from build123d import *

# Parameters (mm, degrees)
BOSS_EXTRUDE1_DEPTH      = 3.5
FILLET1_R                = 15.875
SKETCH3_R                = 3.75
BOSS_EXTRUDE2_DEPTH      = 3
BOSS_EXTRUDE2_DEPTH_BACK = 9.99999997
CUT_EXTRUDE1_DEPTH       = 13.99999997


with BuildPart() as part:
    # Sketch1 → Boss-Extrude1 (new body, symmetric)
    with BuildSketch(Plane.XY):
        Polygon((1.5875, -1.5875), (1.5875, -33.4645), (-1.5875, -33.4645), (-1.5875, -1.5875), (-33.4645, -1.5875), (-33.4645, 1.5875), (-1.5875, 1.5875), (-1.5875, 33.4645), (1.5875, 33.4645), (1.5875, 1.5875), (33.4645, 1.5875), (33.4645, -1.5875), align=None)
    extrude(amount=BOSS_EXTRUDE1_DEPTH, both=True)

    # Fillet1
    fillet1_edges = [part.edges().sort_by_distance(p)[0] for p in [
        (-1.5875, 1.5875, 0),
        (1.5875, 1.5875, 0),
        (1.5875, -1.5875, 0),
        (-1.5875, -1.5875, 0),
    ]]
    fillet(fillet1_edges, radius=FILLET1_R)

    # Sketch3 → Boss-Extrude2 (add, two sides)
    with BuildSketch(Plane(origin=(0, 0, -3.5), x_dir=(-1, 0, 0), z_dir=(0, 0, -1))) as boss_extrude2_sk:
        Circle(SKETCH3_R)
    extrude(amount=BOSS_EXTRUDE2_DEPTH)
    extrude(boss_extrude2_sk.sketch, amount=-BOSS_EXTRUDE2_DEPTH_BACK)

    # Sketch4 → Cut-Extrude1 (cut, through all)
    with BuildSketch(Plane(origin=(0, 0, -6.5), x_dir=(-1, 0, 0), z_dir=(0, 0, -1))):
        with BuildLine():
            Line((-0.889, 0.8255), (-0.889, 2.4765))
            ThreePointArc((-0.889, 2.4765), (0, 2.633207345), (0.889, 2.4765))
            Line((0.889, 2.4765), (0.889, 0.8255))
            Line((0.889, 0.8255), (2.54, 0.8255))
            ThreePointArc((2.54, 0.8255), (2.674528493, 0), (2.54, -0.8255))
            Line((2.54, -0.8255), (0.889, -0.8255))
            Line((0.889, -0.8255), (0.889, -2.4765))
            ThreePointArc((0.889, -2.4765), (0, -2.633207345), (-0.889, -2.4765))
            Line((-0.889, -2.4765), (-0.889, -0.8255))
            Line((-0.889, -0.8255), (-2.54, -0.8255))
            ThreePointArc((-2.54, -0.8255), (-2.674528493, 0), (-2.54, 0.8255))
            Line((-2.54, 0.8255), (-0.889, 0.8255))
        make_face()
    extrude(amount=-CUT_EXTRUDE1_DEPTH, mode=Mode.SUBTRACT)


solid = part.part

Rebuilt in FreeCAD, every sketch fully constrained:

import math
import FreeCAD as App
import Part
import Sketcher

V = App.Vector


def edges_at(feature, points):
    """Names of the edges that pass closest to the given points."""
    edges = feature.Shape.Edges
    near = lambda p: min(range(len(edges)), key=lambda i: edges[i].distToShape(Part.Vertex(*p))[0])
    return sorted({f"Edge{near(p) + 1}" for p in points})


def add_polygon(sketch, points):
    """Adds a closed chain of lines whose ends are joined by coincident constraints."""
    first, n = sketch.GeometryCount, len(points)
    for a, b in zip(points, points[1:] + points[:1]):
        sketch.addGeometry(Part.LineSegment(App.Vector(*a, 0), App.Vector(*b, 0)), False)
    for i in range(n):
        sketch.addConstraint(Sketcher.Constraint("Coincident", first + i, 2, first + (i + 1) % n, 1))

doc = App.newDocument("Part")
body = doc.addObject("PartDesign::Body", "Body")

sketch1 = body.newObject("Sketcher::SketchObject", "Sketch")
sketch1.AttachmentSupport = (doc.getObject("XY_Plane"), [""])
sketch1.MapMode = "FlatFace"
add_polygon(sketch1, [(1.6, -33.5), (1.6, -1.6), (33.5, -1.6), (33.5, 1.6), (1.6, 1.6), (1.6, 33.5), (-1.6, 33.5), (-1.6, 1.6), (-33.5, 1.6), (-33.5, -1.6), (-1.6, -1.6), (-1.6, -33.5)])
sketch1.addConstraint([
    Sketcher.Constraint("Vertical", 0),
    Sketcher.Constraint("Horizontal", 1),
    Sketcher.Constraint("Vertical", 2),
    Sketcher.Constraint("Horizontal", 3),
    Sketcher.Constraint("Vertical", 4),
    Sketcher.Constraint("Horizontal", 5),
    Sketcher.Constraint("Vertical", 6),
    Sketcher.Constraint("Horizontal", 7),
    Sketcher.Constraint("Vertical", 8),
    Sketcher.Constraint("Horizontal", 9),
    Sketcher.Constraint("Vertical", 10),
    Sketcher.Constraint("Horizontal", 11),
    Sketcher.Constraint("Symmetric", 0, 2, 6, 2, -1, 1),
    Sketcher.Constraint("Symmetric", 2, 2, 8, 2, -1, 1),
    Sketcher.Constraint("Symmetric", 4, 2, 10, 2, -1, 1),
    Sketcher.Constraint("Symmetric", 3, 2, 6, 2, -2),
    Sketcher.Constraint("Equal", 9, 0),
    Sketcher.Constraint("Equal", 11, 2),
    Sketcher.Constraint("DistanceX", 1, 1, 1, 2, 31.877),
    Sketcher.Constraint("DistanceX", 5, 2, 5, 1, 3.175),
])
pad1 = body.newObject("PartDesign::Pad", "Pad")
pad1.Profile = sketch1
pad1.Length = 7
pad1.Midplane = True
doc.recompute()

fillet = body.newObject("PartDesign::Fillet", "Fillet")
fillet.Base = (pad1, edges_at(pad1, [
    (-1.587, 1.587, 0),
    (1.587, 1.587, 0),
    (1.587, -1.587, 0),
    (-1.587, -1.587, 0),
]))
fillet.Radius = 15.875

sketch2 = body.newObject("Sketcher::SketchObject", "Sketch001")
sketch2.AttachmentSupport = (doc.getObject("XY_Plane"), [""])
sketch2.MapMode = "FlatFace"
sketch2.AttachmentOffset = App.Placement(V(0, 0, -3.5), App.Rotation())
sketch2.addGeometry(Part.Circle(V(0, 0, 0), V(0, 0, 1), 3.8), False)
sketch2.addConstraint([
    Sketcher.Constraint("Coincident", 0, 3, -1, 1),
    Sketcher.Constraint("Diameter", 0, 7.5),
])
pad2 = body.newObject("PartDesign::Pad", "Pad001")
pad2.Profile = sketch2
pad2.Type = "TwoLengths"
pad2.Length = 3
pad2.Length2 = 10
pad2.Reversed = True

sketch3 = body.newObject("Sketcher::SketchObject", "Sketch002")
sketch3.AttachmentSupport = (doc.getObject("XY_Plane"), [""])
sketch3.MapMode = "FlatFace"
sketch3.AttachmentOffset = App.Placement(V(0, 0, -6.5), App.Rotation())
sketch3.addGeometry([
    Part.LineSegment(V(0.889, 2.4765, 0), V(0.889, 0.8255, 0)),
    Part.LineSegment(V(0.889, 0.8255, 0), V(2.54, 0.8255, 0)),
    Part.ArcOfCircle(Part.Circle(V(0.074528, 0, 0), V(0, 0, 1), 2.6), math.radians(-18.511803), math.radians(18.511803)),
    Part.LineSegment(V(2.54, -0.8255, 0), V(0.889, -0.8255, 0)),
    Part.LineSegment(V(0.889, -0.8255, 0), V(0.889, -2.4765, 0)),
    Part.ArcOfCircle(Part.Circle(V(0, -0.033207, 0), V(0, 0, 1), 2.6), math.radians(-109.994082), math.radians(-70.005918)),
    Part.LineSegment(V(-0.889, -2.4765, 0), V(-0.889, -0.8255, 0)),
    Part.LineSegment(V(-0.889, -0.8255, 0), V(-2.54, -0.8255, 0)),
    Part.ArcOfCircle(Part.Circle(V(-0.074528, 0, 0), V(0, 0, 1), 2.6), math.radians(161.488197), math.radians(198.511803)),
    Part.LineSegment(V(-2.54, 0.8255, 0), V(-0.889, 0.8255, 0)),
    Part.LineSegment(V(-0.889, 0.8255, 0), V(-0.889, 2.4765, 0)),
    Part.ArcOfCircle(Part.Circle(V(0, 0.033207, 0), V(0, 0, 1), 2.6), math.radians(70.005918), math.radians(109.994082)),
], False)
sketch3.addConstraint([
    Sketcher.Constraint("Coincident", 0, 2, 1, 1),
    Sketcher.Constraint("Coincident", 1, 2, 2, 2),
    Sketcher.Constraint("Coincident", 2, 1, 3, 1),
    Sketcher.Constraint("Coincident", 3, 2, 4, 1),
    Sketcher.Constraint("Coincident", 4, 2, 5, 2),
    Sketcher.Constraint("Coincident", 5, 1, 6, 1),
    Sketcher.Constraint("Coincident", 6, 2, 7, 1),
    Sketcher.Constraint("Coincident", 7, 2, 8, 2),
    Sketcher.Constraint("Coincident", 8, 1, 9, 1),
    Sketcher.Constraint("Coincident", 9, 2, 10, 1),
    Sketcher.Constraint("Coincident", 10, 2, 11, 2),
    Sketcher.Constraint("Coincident", 11, 1, 0, 1),
    Sketcher.Constraint("Vertical", 0),
    Sketcher.Constraint("Horizontal", 1),
    Sketcher.Constraint("Horizontal", 3),
    Sketcher.Constraint("Vertical", 4),
    Sketcher.Constraint("Vertical", 6),
    Sketcher.Constraint("Horizontal", 7),
    Sketcher.Constraint("Horizontal", 9),
    Sketcher.Constraint("Vertical", 10),
    Sketcher.Constraint("Equal", 2, 5),
    Sketcher.Constraint("Equal", 5, 8),
    Sketcher.Constraint("Equal", 8, 11),
    Sketcher.Constraint("Symmetric", 2, 3, 8, 3, -1, 1),
    Sketcher.Constraint("Symmetric", 5, 3, 11, 3, -1, 1),
    Sketcher.Constraint("Symmetric", 0, 2, 6, 2, -1, 1),
    Sketcher.Constraint("Symmetric", 3, 2, 9, 2, -1, 1),
    Sketcher.Constraint("Symmetric", 4, 2, 5, 1, -2),
    Sketcher.Constraint("Symmetric", 2, 1, 7, 2, -2),
    Sketcher.Constraint("Equal", 9, 0),
    Sketcher.Constraint("Radius", 2, 2.6),
    Sketcher.Constraint("DistanceX", 1, 1, 1, 2, 1.651),
    Sketcher.Constraint("DistanceX", -1, 1, 1, 2, 2.54),
    Sketcher.Constraint("DistanceY", 2, 1, 1, 2, 1.651),
])
pocket1 = body.newObject("PartDesign::Pocket", "Pocket")
pocket1.Profile = sketch3
pocket1.Type = "ThroughAll"
pocket1.Reversed = True

doc.recompute()
